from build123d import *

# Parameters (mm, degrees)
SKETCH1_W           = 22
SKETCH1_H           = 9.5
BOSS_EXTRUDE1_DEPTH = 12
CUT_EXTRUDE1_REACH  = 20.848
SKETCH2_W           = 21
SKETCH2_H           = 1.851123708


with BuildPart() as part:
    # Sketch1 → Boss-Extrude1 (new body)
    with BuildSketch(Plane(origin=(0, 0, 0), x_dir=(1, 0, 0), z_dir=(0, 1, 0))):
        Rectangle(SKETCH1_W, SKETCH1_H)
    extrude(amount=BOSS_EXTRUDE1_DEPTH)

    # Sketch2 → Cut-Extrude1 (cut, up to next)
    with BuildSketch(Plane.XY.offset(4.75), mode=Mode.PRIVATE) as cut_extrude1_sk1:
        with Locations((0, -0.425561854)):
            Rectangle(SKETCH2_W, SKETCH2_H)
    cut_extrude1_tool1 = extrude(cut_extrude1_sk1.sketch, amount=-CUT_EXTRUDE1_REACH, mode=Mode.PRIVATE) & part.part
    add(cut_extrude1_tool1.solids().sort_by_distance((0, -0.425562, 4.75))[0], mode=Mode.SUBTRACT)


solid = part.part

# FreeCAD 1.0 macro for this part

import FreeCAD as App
import Part
import Sketcher


def add_polygon(sketch, points):
    """Adds a closed chain of lines whose ends are joined by coincident constraints."""
    first, n = sketch.GeometryCount, len(points)
    for a, b in zip(points, points[1:] + points[:1]):
        sketch.addGeometry(Part.LineSegment(App.Vector(*a, 0), App.Vector(*b, 0)), False)
    for i in range(n):
        sketch.addConstraint(Sketcher.Constraint("Coincident", first + i, 2, first + (i + 1) % n, 1))

doc = App.newDocument("Part")
params = doc.addObject("Spreadsheet::Sheet", "Params")
for row, (alias, value) in enumerate([
    ("sketch1_width", "22 mm"),
    ("sketch1_height", "9.5 mm"),
    ("pad1_length", "12 mm"),
    ("sketch2_width", "21 mm"),
    ("pocket1_length", "9.5 mm"),
], start=1):
    params.set(f"A{row}", alias)
    params.set(f"B{row}", "=" + value)
    params.setAlias(f"B{row}", alias)

body = doc.addObject("PartDesign::Body", "Body")

sketch1 = doc.addObject("Sketcher::SketchObject", "Sketch")
body.addObject(sketch1)
sketch1.AttachmentSupport = (doc.XZ_Plane, [""])
sketch1.MapMode = "FlatFace"
add_polygon(sketch1, [(-11, -5), (-11, 5), (11, 5), (11, -5)])
sketch1.addConstraint([
    Sketcher.Constraint("Vertical", 0),
    Sketcher.Constraint("Horizontal", 1),
    Sketcher.Constraint("Vertical", 2),
    Sketcher.Constraint("Horizontal", 3),
    Sketcher.Constraint("Symmetric", 0, 2, 2, 2, -1, 1),
    Sketcher.Constraint("DistanceX", 1, 1, 1, 2, 22.0),
    Sketcher.Constraint("DistanceY", 0, 1, 0, 2, 9.5),
])
sketch1.setExpression("Constraints[9]", "Params.sketch1_width")
sketch1.setExpression("Constraints[10]", "Params.sketch1_height")
pad1 = doc.addObject("PartDesign::Pad", "Pad")
body.addObject(pad1)
pad1.Profile = sketch1
pad1.setExpression("Length", "Params.pad1_length")
pad1.Reversed = True

sketch2 = doc.addObject("Sketcher::SketchObject", "Sketch001")
body.addObject(sketch2)
sketch2.AttachmentSupport = (doc.XY_Plane, [""])
sketch2.MapMode = "FlatFace"
sketch2.AttachmentOffset = App.Placement(App.Vector(0, 0, 4.75), App.Rotation())
add_polygon(sketch2, [(-10.5, 0.5), (-10.5, -1.4), (10.5, -1.4), (10.5, 0.5)])
sketch2.addConstraint([
    Sketcher.Constraint("Vertical", 0),
    Sketcher.Constraint("Horizontal", 1),
    Sketcher.Constraint("Vertical", 2),
    Sketcher.Constraint("Horizontal", 3),
    Sketcher.Constraint("DistanceX", 1, 1, 1, 2, 21.0),
    Sketcher.Constraint("DistanceX", 0, 2, -1, 1, 10.5),
    Sketcher.Constraint("DistanceY", -1, 1, 2, 2, 0.5),
    Sketcher.Constraint("DistanceY", 0, 2, 0, 1, 1.851124),
])
sketch2.setExpression("Constraints[8]", "Params.sketch2_width")
pocket1 = doc.addObject("PartDesign::Pocket", "Pocket")
body.addObject(pocket1)
pocket1.Profile = sketch2
pocket1.setExpression("Length", "Params.pocket1_length")

doc.recompute()
